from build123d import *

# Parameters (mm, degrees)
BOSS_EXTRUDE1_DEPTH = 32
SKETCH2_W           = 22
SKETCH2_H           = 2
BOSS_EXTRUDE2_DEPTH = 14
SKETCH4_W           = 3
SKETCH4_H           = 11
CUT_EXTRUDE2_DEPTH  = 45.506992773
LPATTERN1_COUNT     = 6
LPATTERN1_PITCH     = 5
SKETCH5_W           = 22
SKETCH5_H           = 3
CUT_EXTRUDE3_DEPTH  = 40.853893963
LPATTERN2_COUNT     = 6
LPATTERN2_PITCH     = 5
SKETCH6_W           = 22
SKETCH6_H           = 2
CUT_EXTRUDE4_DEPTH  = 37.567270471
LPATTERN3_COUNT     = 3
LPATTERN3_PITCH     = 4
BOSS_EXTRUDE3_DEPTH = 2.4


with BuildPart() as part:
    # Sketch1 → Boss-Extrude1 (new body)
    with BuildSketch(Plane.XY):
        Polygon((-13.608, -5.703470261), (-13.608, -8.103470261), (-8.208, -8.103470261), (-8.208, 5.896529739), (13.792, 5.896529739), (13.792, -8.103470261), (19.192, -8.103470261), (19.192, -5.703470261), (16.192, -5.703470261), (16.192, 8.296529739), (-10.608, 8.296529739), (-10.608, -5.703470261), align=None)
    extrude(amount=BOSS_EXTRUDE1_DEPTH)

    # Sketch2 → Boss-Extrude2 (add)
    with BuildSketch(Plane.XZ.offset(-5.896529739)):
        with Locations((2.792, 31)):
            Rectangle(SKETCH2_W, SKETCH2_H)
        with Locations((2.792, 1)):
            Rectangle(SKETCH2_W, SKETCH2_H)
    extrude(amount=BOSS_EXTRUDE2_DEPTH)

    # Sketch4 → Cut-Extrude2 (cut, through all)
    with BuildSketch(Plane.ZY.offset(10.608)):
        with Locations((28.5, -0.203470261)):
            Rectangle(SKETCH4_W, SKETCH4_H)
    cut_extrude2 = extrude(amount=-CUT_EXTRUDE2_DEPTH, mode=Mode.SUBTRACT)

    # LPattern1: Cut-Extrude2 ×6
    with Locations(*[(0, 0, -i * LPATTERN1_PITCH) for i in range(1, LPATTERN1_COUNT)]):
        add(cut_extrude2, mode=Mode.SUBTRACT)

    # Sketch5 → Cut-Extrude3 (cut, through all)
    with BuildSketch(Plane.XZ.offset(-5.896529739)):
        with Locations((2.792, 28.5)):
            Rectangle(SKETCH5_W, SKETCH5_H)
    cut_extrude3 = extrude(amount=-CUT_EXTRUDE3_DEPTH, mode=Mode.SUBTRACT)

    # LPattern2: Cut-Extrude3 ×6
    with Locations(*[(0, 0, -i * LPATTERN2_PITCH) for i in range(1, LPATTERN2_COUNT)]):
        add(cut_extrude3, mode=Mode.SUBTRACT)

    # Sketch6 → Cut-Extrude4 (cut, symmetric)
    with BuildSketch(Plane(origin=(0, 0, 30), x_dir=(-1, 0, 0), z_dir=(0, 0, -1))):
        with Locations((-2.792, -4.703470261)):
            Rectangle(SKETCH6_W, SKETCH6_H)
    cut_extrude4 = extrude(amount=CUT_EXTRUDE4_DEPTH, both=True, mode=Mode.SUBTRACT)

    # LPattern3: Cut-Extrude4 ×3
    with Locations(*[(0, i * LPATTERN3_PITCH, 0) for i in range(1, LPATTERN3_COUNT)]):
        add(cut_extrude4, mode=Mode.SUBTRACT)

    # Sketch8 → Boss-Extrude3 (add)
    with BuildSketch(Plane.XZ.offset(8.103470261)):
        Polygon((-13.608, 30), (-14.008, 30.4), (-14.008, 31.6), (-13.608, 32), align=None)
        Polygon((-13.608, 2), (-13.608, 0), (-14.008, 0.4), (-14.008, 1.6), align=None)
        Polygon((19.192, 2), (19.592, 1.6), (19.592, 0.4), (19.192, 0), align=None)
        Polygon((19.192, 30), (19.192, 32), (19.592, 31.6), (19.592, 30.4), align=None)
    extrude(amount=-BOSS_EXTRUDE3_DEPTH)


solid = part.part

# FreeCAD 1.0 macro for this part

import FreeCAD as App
import Part
import Sketcher
from FreeCAD import Vector
Q = App.Units.Quantity

doc = App.newDocument("Part")
body = doc.addObject("PartDesign::Body", "Body")

# Sketch on XY plane
sketch1 = body.newObject("Sketcher::SketchObject", "Sketch")
sketch1.AttachmentSupport = (doc.getObject("XY_Plane"), [""])
sketch1.MapMode = "FlatFace"
sketch1.addGeometry(Part.LineSegment(Vector(-13.6, -5.7, 0), Vector(-13.6, -8.1, 0)), False)
sketch1.addGeometry(Part.LineSegment(Vector(-13.6, -8.1, 0), Vector(-8.2, -8.1, 0)), False)
sketch1.addGeometry(Part.LineSegment(Vector(-8.2, -8.1, 0), Vector(-8.2, 5.9, 0)), False)
sketch1.addGeometry(Part.LineSegment(Vector(-8.2, 5.9, 0), Vector(13.8, 5.9, 0)), False)
sketch1.addGeometry(Part.LineSegment(Vector(13.8, 5.9, 0), Vector(13.8, -8.1, 0)), False)
sketch1.addGeometry(Part.LineSegment(Vector(13.8, -8.1, 0), Vector(19.2, -8.1, 0)), False)
sketch1.addGeometry(Part.LineSegment(Vector(19.2, -8.1, 0), Vector(19.2, -5.7, 0)), False)
sketch1.addGeometry(Part.LineSegment(Vector(19.2, -5.7, 0), Vector(16.2, -5.7, 0)), False)
sketch1.addGeometry(Part.LineSegment(Vector(16.2, -5.7, 0), Vector(16.2, 8.3, 0)), False)
sketch1.addGeometry(Part.LineSegment(Vector(16.2, 8.3, 0), Vector(-10.6, 8.3, 0)), False)
sketch1.addGeometry(Part.LineSegment(Vector(-10.6, 8.3, 0), Vector(-10.6, -5.7, 0)), False)
sketch1.addGeometry(Part.LineSegment(Vector(-10.6, -5.7, 0), Vector(-13.6, -5.7, 0)), False)
sketch1.addConstraint(Sketcher.Constraint("Coincident", 0, 2, 1, 1))
sketch1.addConstraint(Sketcher.Constraint("Coincident", 1, 2, 2, 1))
sketch1.addConstraint(Sketcher.Constraint("Coincident", 2, 2, 3, 1))
sketch1.addConstraint(Sketcher.Constraint("Coincident", 3, 2, 4, 1))
sketch1.addConstraint(Sketcher.Constraint("Coincident", 4, 2, 5, 1))
sketch1.addConstraint(Sketcher.Constraint("Coincident", 5, 2, 6, 1))
sketch1.addConstraint(Sketcher.Constraint("Coincident", 6, 2, 7, 1))
sketch1.addConstraint(Sketcher.Constraint("Coincident", 7, 2, 8, 1))
sketch1.addConstraint(Sketcher.Constraint("Coincident", 8, 2, 9, 1))
sketch1.addConstraint(Sketcher.Constraint("Coincident", 9, 2, 10, 1))
sketch1.addConstraint(Sketcher.Constraint("Coincident", 10, 2, 11, 1))
sketch1.addConstraint(Sketcher.Constraint("Coincident", 11, 2, 0, 1))
sketch1.addConstraint(Sketcher.Constraint("Vertical", 0))
sketch1.addConstraint(Sketcher.Constraint("Horizontal", 1))
sketch1.addConstraint(Sketcher.Constraint("Vertical", 2))
sketch1.addConstraint(Sketcher.Constraint("Horizontal", 3))
sketch1.addConstraint(Sketcher.Constraint("Vertical", 4))
sketch1.addConstraint(Sketcher.Constraint("Horizontal", 5))
sketch1.addConstraint(Sketcher.Constraint("Vertical", 6))
sketch1.addConstraint(Sketcher.Constraint("Horizontal", 7))
sketch1.addConstraint(Sketcher.Constraint("Vertical", 8))
sketch1.addConstraint(Sketcher.Constraint("Horizontal", 9))
sketch1.addConstraint(Sketcher.Constraint("Vertical", 10))
sketch1.addConstraint(Sketcher.Constraint("Horizontal", 11))
sketch1.addConstraint(Sketcher.Constraint("Horizontal", 1, 2, 4, 2))
sketch1.addConstraint(Sketcher.Constraint("Horizontal", 7, 2, 10, 2))
sketch1.addConstraint(Sketcher.Constraint("Equal", 1, 5))
sketch1.addConstraint(Sketcher.Constraint("Equal", 7, 11))
sketch1.addConstraint(Sketcher.Constraint("Equal", 4, 8))
sketch1.addConstraint(Sketcher.Constraint("DistanceX", 3, 1, 3, 2, Q("22 mm")))
sketch1.addConstraint(Sketcher.Constraint("DistanceX", 7, 2, 7, 1, Q("3 mm")))
sketch1.addConstraint(Sketcher.Constraint("DistanceY", 2, 1, 2, 2, Q("14 mm")))
sketch1.addConstraint(Sketcher.Constraint("DistanceX", 1, 1, 1, 2, Q("5.4 mm")))
sketch1.addConstraint(Sketcher.Constraint("DistanceY", 0, 2, 0, 1, Q("2.4 mm")))
sketch1.addConstraint(Sketcher.Constraint("DistanceX", 0, 2, -1, 1, Q("13.608 mm")))
sketch1.addConstraint(Sketcher.Constraint("DistanceY", 0, 2, -1, 1, Q("8.10347 mm")))
pad1 = body.newObject("PartDesign::Pad", "Pad")
pad1.Profile = sketch1
pad1.Length = 32

# Sketch on XZ plane
sketch2 = body.newObject("Sketcher::SketchObject", "Sketch001")
sketch2.AttachmentSupport = (doc.getObject("XZ_Plane"), [""])
sketch2.MapMode = "FlatFace"
sketch2.AttachmentOffset = App.Placement(Vector(0, 0, -5.89653), App.Rotation())
sketch2.addGeometry(Part.LineSegment(Vector(-8.2, 32, 0), Vector(-8.2, 30, 0)), False)
sketch2.addGeometry(Part.LineSegment(Vector(-8.2, 30, 0), Vector(13.8, 30, 0)), False)
sketch2.addGeometry(Part.LineSegment(Vector(13.8, 30, 0), Vector(13.8, 32, 0)), False)
sketch2.addGeometry(Part.LineSegment(Vector(13.8, 32, 0), Vector(-8.2, 32, 0)), False)
sketch2.addGeometry(Part.LineSegment(Vector(-8.2, 2, 0), Vector(-8.2, 0, 0)), False)
sketch2.addGeometry(Part.LineSegment(Vector(-8.2, 0, 0), Vector(13.8, 0, 0)), False)
sketch2.addGeometry(Part.LineSegment(Vector(13.8, 0, 0), Vector(13.8, 2, 0)), False)
sketch2.addGeometry(Part.LineSegment(Vector(13.8, 2, 0), Vector(-8.2, 2, 0)), False)
sketch2.addConstraint(Sketcher.Constraint("Coincident", 0, 2, 1, 1))
sketch2.addConstraint(Sketcher.Constraint("Coincident", 1, 2, 2, 1))
sketch2.addConstraint(Sketcher.Constraint("Coincident", 2, 2, 3, 1))
sketch2.addConstraint(Sketcher.Constraint("Coincident", 3, 2, 0, 1))
sketch2.addConstraint(Sketcher.Constraint("Coincident", 4, 2, 5, 1))
sketch2.addConstraint(Sketcher.Constraint("Coincident", 5, 2, 6, 1))
sketch2.addConstraint(Sketcher.Constraint("Coincident", 6, 2, 7, 1))
sketch2.addConstraint(Sketcher.Constraint("Coincident", 7, 2, 4, 1))
sketch2.addConstraint(Sketcher.Constraint("Vertical", 0))
sketch2.addConstraint(Sketcher.Constraint("Horizontal", 1))
sketch2.addConstraint(Sketcher.Constraint("Vertical", 2))
sketch2.addConstraint(Sketcher.Constraint("Horizontal", 3))
sketch2.addConstraint(Sketcher.Constraint("Vertical", 4))
sketch2.addConstraint(Sketcher.Constraint("Horizontal", 5))
sketch2.addConstraint(Sketcher.Constraint("Vertical", 6))
sketch2.addConstraint(Sketcher.Constraint("Horizontal", 7))
sketch2.addConstraint(Sketcher.Constraint("PointOnObject", 4, 2, -1))
sketch2.addConstraint(Sketcher.Constraint("Vertical", 3, 2, 4, 2))
sketch2.addConstraint(Sketcher.Constraint("Vertical", 2, 2, 5, 2))
sketch2.addConstraint(Sketcher.Constraint("Equal", 2, 4))
sketch2.addConstraint(Sketcher.Constraint("DistanceX", 1, 1, 1, 2, Q("22 mm")))
sketch2.addConstraint(Sketcher.Constraint("DistanceY", 0, 2, 0, 1, Q("2 mm")))
sketch2.addConstraint(Sketcher.Constraint("DistanceY", -1, 1, 0, 2, Q("30 mm")))
sketch2.addConstraint(Sketcher.Constraint("DistanceX", 0, 2, -1, 1, Q("8.208 mm")))
pad2 = body.newObject("PartDesign::Pad", "Pad001")
pad2.Profile = sketch2
pad2.Length = 14

# Sketch on YZ plane
sketch3 = body.newObject("Sketcher::SketchObject", "Sketch002")
sketch3.AttachmentSupport = (doc.getObject("YZ_Plane"), [""])
sketch3.MapMode = "FlatFace"
sketch3.AttachmentOffset = App.Placement(Vector(0, 0, -10.608), App.Rotation())
sketch3.addGeometry(Part.LineSegment(Vector(5.3, 27, 0), Vector(-5.7, 27, 0)), False)
sketch3.addGeometry(Part.LineSegment(Vector(-5.7, 27, 0), Vector(-5.7, 30, 0)), False)
sketch3.addGeometry(Part.LineSegment(Vector(-5.7, 30, 0), Vector(5.3, 30, 0)), False)
sketch3.addGeometry(Part.LineSegment(Vector(5.3, 30, 0), Vector(5.3, 27, 0)), False)
sketch3.addConstraint(Sketcher.Constraint("Coincident", 0, 2, 1, 1))
sketch3.addConstraint(Sketcher.Constraint("Coincident", 1, 2, 2, 1))
sketch3.addConstraint(Sketcher.Constraint("Coincident", 2, 2, 3, 1))
sketch3.addConstraint(Sketcher.Constraint("Coincident", 3, 2, 0, 1))
sketch3.addConstraint(Sketcher.Constraint("Horizontal", 0))
sketch3.addConstraint(Sketcher.Constraint("Vertical", 1))
sketch3.addConstraint(Sketcher.Constraint("Horizontal", 2))
sketch3.addConstraint(Sketcher.Constraint("Vertical", 3))
sketch3.addConstraint(Sketcher.Constraint("DistanceX", 0, 2, 0, 1, Q("11 mm")))
sketch3.addConstraint(Sketcher.Constraint("DistanceY", 1, 1, 1, 2, Q("3 mm")))
sketch3.addConstraint(Sketcher.Constraint("DistanceY", -1, 1, 0, 2, Q("27 mm")))
sketch3.addConstraint(Sketcher.Constraint("DistanceX", 0, 2, -1, 1, Q("5.70347 mm")))
pocket1 = body.newObject("PartDesign::Pocket", "Pocket")
pocket1.Profile = sketch3
pocket1.Type = "ThroughAll"
pocket1.Reversed = True
doc.recompute()

linearpattern = body.newObject("PartDesign::LinearPattern", "LinearPattern")
linearpattern.Originals = [pocket1]
linearpattern.Direction = (doc.getObject("Z_Axis"), [""])
linearpattern.Mode = "offset"
linearpattern.Offset = 5
linearpattern.Occurrences = 6
linearpattern.Reversed = True
body.Tip = linearpattern

# Sketch on XZ plane
sketch4 = body.newObject("Sketcher::SketchObject", "Sketch003")
sketch4.AttachmentSupport = (doc.getObject("XZ_Plane"), [""])
sketch4.MapMode = "FlatFace"
sketch4.AttachmentOffset = App.Placement(Vector(0, 0, -5.89653), App.Rotation())
sketch4.addGeometry(Part.LineSegment(Vector(-8.2, 30, 0), Vector(-8.2, 27, 0)), False)
sketch4.addGeometry(Part.LineSegment(Vector(-8.2, 27, 0), Vector(13.8, 27, 0)), False)
sketch4.addGeometry(Part.LineSegment(Vector(13.8, 27, 0), Vector(13.8, 30, 0)), False)
sketch4.addGeometry(Part.LineSegment(Vector(13.8, 30, 0), Vector(-8.2, 30, 0)), False)
sketch4.addConstraint(Sketcher.Constraint("Coincident", 0, 2, 1, 1))
sketch4.addConstraint(Sketcher.Constraint("Coincident", 1, 2, 2, 1))
sketch4.addConstraint(Sketcher.Constraint("Coincident", 2, 2, 3, 1))
sketch4.addConstraint(Sketcher.Constraint("Coincident", 3, 2, 0, 1))
sketch4.addConstraint(Sketcher.Constraint("Vertical", 0))
sketch4.addConstraint(Sketcher.Constraint("Horizontal", 1))
sketch4.addConstraint(Sketcher.Constraint("Vertical", 2))
sketch4.addConstraint(Sketcher.Constraint("Horizontal", 3))
sketch4.addConstraint(Sketcher.Constraint("DistanceX", 1, 1, 1, 2, Q("22 mm")))
sketch4.addConstraint(Sketcher.Constraint("DistanceY", 0, 2, 0, 1, Q("3 mm")))
sketch4.addConstraint(Sketcher.Constraint("DistanceY", -1, 1, 0, 2, Q("27 mm")))
sketch4.addConstraint(Sketcher.Constraint("DistanceX", 0, 2, -1, 1, Q("8.208 mm")))
pocket2 = body.newObject("PartDesign::Pocket", "Pocket001")
pocket2.Profile = sketch4
pocket2.Type = "ThroughAll"
doc.recompute()

linearpattern2 = body.newObject("PartDesign::LinearPattern", "LinearPattern001")
linearpattern2.Originals = [pocket2]
linearpattern2.Direction = (doc.getObject("Z_Axis"), [""])
linearpattern2.Mode = "offset"
linearpattern2.Offset = 5
linearpattern2.Occurrences = 6
linearpattern2.Reversed = True
body.Tip = linearpattern2

# Sketch on XY plane
sketch5 = body.newObject("Sketcher::SketchObject", "Sketch004")
sketch5.AttachmentSupport = (doc.getObject("XY_Plane"), [""])
sketch5.MapMode = "FlatFace"
sketch5.AttachmentOffset = App.Placement(Vector(0, 0, 30), App.Rotation())
sketch5.addGeometry(Part.LineSegment(Vector(13.8, -3.7, 0), Vector(13.8, -5.7, 0)), False)
sketch5.addGeometry(Part.LineSegment(Vector(13.8, -5.7, 0), Vector(-8.2, -5.7, 0)), False)
sketch5.addGeometry(Part.LineSegment(Vector(-8.2, -5.7, 0), Vector(-8.2, -3.7, 0)), False)
sketch5.addGeometry(Part.LineSegment(Vector(-8.2, -3.7, 0), Vector(13.8, -3.7, 0)), False)
sketch5.addConstraint(Sketcher.Constraint("Coincident", 0, 2, 1, 1))
sketch5.addConstraint(Sketcher.Constraint("Coincident", 1, 2, 2, 1))
sketch5.addConstraint(Sketcher.Constraint("Coincident", 2, 2, 3, 1))
sketch5.addConstraint(Sketcher.Constraint("Coincident", 3, 2, 0, 1))
sketch5.addConstraint(Sketcher.Constraint("Vertical", 0))
sketch5.addConstraint(Sketcher.Constraint("Horizontal", 1))
sketch5.addConstraint(Sketcher.Constraint("Vertical", 2))
sketch5.addConstraint(Sketcher.Constraint("Horizontal", 3))
sketch5.addConstraint(Sketcher.Constraint("DistanceX", 1, 2, 1, 1, Q("22 mm")))
sketch5.addConstraint(Sketcher.Constraint("DistanceY", 0, 2, 0, 1, Q("2 mm")))
sketch5.addConstraint(Sketcher.Constraint("DistanceX", -1, 1, 0, 2, Q("13.792 mm")))
sketch5.addConstraint(Sketcher.Constraint("DistanceY", 0, 2, -1, 1, Q("5.70347 mm")))
pocket3 = body.newObject("PartDesign::Pocket", "Pocket002")
pocket3.Profile = sketch5
pocket3.Length = 75.134541
pocket3.Midplane = True
doc.recompute()

linearpattern3 = body.newObject("PartDesign::LinearPattern", "LinearPattern002")
linearpattern3.Originals = [pocket3]
linearpattern3.Direction = (doc.getObject("Y_Axis"), [""])
linearpattern3.Mode = "offset"
linearpattern3.Offset = 4
linearpattern3.Occurrences = 3
body.Tip = linearpattern3

# Sketch on XZ plane
sketch6 = body.newObject("Sketcher::SketchObject", "Sketch005")
sketch6.AttachmentSupport = (doc.getObject("XZ_Plane"), [""])
sketch6.MapMode = "FlatFace"
sketch6.AttachmentOffset = App.Placement(Vector(0, 0, 8.10347), App.Rotation())
sketch6.addGeometry(Part.LineSegment(Vector(-14, 30.4, 0), Vector(-13.6, 30, 0)), False)
sketch6.addGeometry(Part.LineSegment(Vector(-13.6, 30, 0), Vector(-13.6, 32, 0)), False)
sketch6.addGeometry(Part.LineSegment(Vector(-13.6, 32, 0), Vector(-14, 31.6, 0)), False)
sketch6.addGeometry(Part.LineSegment(Vector(-14, 31.6, 0), Vector(-14, 30.4, 0)), False)
sketch6.addGeometry(Part.LineSegment(Vector(-13.6, 0, 0), Vector(-13.6, 2, 0)), False)
sketch6.addGeometry(Part.LineSegment(Vector(-13.6, 2, 0), Vector(-14, 1.6, 0)), False)
sketch6.addGeometry(Part.LineSegment(Vector(-14, 1.6, 0), Vector(-14, 0.4, 0)), False)
sketch6.addGeometry(Part.LineSegment(Vector(-14, 0.4, 0), Vector(-13.6, 0, 0)), False)
sketch6.addGeometry(Part.LineSegment(Vector(19.6, 1.6, 0), Vector(19.2, 2, 0)), False)
sketch6.addGeometry(Part.LineSegment(Vector(19.2, 2, 0), Vector(19.2, 0, 0)), False)
sketch6.addGeometry(Part.LineSegment(Vector(19.2, 0, 0), Vector(19.6, 0.4, 0)), False)
sketch6.addGeometry(Part.LineSegment(Vector(19.6, 0.4, 0), Vector(19.6, 1.6, 0)), False)
sketch6.addGeometry(Part.LineSegment(Vector(19.2, 32, 0), Vector(19.2, 30, 0)), False)
sketch6.addGeometry(Part.LineSegment(Vector(19.2, 30, 0), Vector(19.6, 30.4, 0)), False)
sketch6.addGeometry(Part.LineSegment(Vector(19.6, 30.4, 0), Vector(19.6, 31.6, 0)), False)
sketch6.addGeometry(Part.LineSegment(Vector(19.6, 31.6, 0), Vector(19.2, 32, 0)), False)
sketch6.addConstraint(Sketcher.Constraint("Coincident", 0, 2, 1, 1))
sketch6.addConstraint(Sketcher.Constraint("Coincident", 1, 2, 2, 1))
sketch6.addConstraint(Sketcher.Constraint("Coincident", 2, 2, 3, 1))
sketch6.addConstraint(Sketcher.Constraint("Coincident", 3, 2, 0, 1))
sketch6.addConstraint(Sketcher.Constraint("Coincident", 4, 2, 5, 1))
sketch6.addConstraint(Sketcher.Constraint("Coincident", 5, 2, 6, 1))
sketch6.addConstraint(Sketcher.Constraint("Coincident", 6, 2, 7, 1))
sketch6.addConstraint(Sketcher.Constraint("Coincident", 7, 2, 4, 1))
sketch6.addConstraint(Sketcher.Constraint("Coincident", 8, 2, 9, 1))
sketch6.addConstraint(Sketcher.Constraint("Coincident", 9, 2, 10, 1))
sketch6.addConstraint(Sketcher.Constraint("Coincident", 10, 2, 11, 1))
sketch6.addConstraint(Sketcher.Constraint("Coincident", 11, 2, 8, 1))
sketch6.addConstraint(Sketcher.Constraint("Coincident", 12, 2, 13, 1))
sketch6.addConstraint(Sketcher.Constraint("Coincident", 13, 2, 14, 1))
sketch6.addConstraint(Sketcher.Constraint("Coincident", 14, 2, 15, 1))
sketch6.addConstraint(Sketcher.Constraint("Coincident", 15, 2, 12, 1))
sketch6.addConstraint(Sketcher.Constraint("Vertical", 1))
sketch6.addConstraint(Sketcher.Constraint("Vertical", 3))
sketch6.addConstraint(Sketcher.Constraint("Vertical", 4))
sketch6.addConstraint(Sketcher.Constraint("Vertical", 6))
sketch6.addConstraint(Sketcher.Constraint("Vertical", 9))
sketch6.addConstraint(Sketcher.Constraint("Vertical", 11))
sketch6.addConstraint(Sketcher.Constraint("Vertical", 12))
sketch6.addConstraint(Sketcher.Constraint("Vertical", 14))
sketch6.addConstraint(Sketcher.Constraint("PointOnObject", 7, 2, -1))
sketch6.addConstraint(Sketcher.Constraint("PointOnObject", 9, 2, -1))
sketch6.addConstraint(Sketcher.Constraint("Perpendicular", 0, 2))
sketch6.addConstraint(Sketcher.Constraint("Parallel", 2, 5))
sketch6.addConstraint(Sketcher.Constraint("Perpendicular", 5, 7))
sketch6.addConstraint(Sketcher.Constraint("Parallel", 7, 8))
sketch6.addConstraint(Sketcher.Constraint("Perpendicular", 8, 10))
sketch6.addConstraint(Sketcher.Constraint("Parallel", 10, 13))
sketch6.addConstraint(Sketcher.Constraint("Perpendicular", 13, 15))
sketch6.addConstraint(Sketcher.Constraint("Horizontal", 4, 2, 8, 2))
sketch6.addConstraint(Sketcher.Constraint("Horizontal", 6, 2, 10, 2))
sketch6.addConstraint(Sketcher.Constraint("Horizontal", 5, 2, 11, 2))
sketch6.addConstraint(Sketcher.Constraint("Horizontal", 0, 2, 12, 2))
sketch6.addConstraint(Sketcher.Constraint("Horizontal", 3, 2, 13, 2))
sketch6.addConstraint(Sketcher.Constraint("Horizontal", 2, 2, 14, 2))
sketch6.addConstraint(Sketcher.Constraint("Vertical", 1, 2, 4, 2))
sketch6.addConstraint(Sketcher.Constraint("Vertical", 3, 2, 5, 2))
sketch6.addConstraint(Sketcher.Constraint("Vertical", 9, 2, 12, 2))
sketch6.addConstraint(Sketcher.Constraint("Equal", 1, 4))
sketch6.addConstraint(Sketcher.Constraint("DistanceY", 1, 1, 1, 2, Q("2 mm")))
sketch6.addConstraint(Sketcher.Constraint("DistanceY", 3, 2, 3, 1, Q("1.2 mm")))
sketch6.addConstraint(Sketcher.Constraint("DistanceY", -1, 1, 0, 2, Q("30 mm")))
sketch6.addConstraint(Sketcher.Constraint("DistanceX", 4, 2, 8, 2, Q("32.8 mm")))
sketch6.addConstraint(Sketcher.Constraint("DistanceX", 0, 2, -1, 1, Q("13.608 mm")))
pad3 = body.newObject("PartDesign::Pad", "Pad002")
pad3.Profile = sketch6
pad3.Length = 2.4
pad3.Reversed = True

doc.recompute()
